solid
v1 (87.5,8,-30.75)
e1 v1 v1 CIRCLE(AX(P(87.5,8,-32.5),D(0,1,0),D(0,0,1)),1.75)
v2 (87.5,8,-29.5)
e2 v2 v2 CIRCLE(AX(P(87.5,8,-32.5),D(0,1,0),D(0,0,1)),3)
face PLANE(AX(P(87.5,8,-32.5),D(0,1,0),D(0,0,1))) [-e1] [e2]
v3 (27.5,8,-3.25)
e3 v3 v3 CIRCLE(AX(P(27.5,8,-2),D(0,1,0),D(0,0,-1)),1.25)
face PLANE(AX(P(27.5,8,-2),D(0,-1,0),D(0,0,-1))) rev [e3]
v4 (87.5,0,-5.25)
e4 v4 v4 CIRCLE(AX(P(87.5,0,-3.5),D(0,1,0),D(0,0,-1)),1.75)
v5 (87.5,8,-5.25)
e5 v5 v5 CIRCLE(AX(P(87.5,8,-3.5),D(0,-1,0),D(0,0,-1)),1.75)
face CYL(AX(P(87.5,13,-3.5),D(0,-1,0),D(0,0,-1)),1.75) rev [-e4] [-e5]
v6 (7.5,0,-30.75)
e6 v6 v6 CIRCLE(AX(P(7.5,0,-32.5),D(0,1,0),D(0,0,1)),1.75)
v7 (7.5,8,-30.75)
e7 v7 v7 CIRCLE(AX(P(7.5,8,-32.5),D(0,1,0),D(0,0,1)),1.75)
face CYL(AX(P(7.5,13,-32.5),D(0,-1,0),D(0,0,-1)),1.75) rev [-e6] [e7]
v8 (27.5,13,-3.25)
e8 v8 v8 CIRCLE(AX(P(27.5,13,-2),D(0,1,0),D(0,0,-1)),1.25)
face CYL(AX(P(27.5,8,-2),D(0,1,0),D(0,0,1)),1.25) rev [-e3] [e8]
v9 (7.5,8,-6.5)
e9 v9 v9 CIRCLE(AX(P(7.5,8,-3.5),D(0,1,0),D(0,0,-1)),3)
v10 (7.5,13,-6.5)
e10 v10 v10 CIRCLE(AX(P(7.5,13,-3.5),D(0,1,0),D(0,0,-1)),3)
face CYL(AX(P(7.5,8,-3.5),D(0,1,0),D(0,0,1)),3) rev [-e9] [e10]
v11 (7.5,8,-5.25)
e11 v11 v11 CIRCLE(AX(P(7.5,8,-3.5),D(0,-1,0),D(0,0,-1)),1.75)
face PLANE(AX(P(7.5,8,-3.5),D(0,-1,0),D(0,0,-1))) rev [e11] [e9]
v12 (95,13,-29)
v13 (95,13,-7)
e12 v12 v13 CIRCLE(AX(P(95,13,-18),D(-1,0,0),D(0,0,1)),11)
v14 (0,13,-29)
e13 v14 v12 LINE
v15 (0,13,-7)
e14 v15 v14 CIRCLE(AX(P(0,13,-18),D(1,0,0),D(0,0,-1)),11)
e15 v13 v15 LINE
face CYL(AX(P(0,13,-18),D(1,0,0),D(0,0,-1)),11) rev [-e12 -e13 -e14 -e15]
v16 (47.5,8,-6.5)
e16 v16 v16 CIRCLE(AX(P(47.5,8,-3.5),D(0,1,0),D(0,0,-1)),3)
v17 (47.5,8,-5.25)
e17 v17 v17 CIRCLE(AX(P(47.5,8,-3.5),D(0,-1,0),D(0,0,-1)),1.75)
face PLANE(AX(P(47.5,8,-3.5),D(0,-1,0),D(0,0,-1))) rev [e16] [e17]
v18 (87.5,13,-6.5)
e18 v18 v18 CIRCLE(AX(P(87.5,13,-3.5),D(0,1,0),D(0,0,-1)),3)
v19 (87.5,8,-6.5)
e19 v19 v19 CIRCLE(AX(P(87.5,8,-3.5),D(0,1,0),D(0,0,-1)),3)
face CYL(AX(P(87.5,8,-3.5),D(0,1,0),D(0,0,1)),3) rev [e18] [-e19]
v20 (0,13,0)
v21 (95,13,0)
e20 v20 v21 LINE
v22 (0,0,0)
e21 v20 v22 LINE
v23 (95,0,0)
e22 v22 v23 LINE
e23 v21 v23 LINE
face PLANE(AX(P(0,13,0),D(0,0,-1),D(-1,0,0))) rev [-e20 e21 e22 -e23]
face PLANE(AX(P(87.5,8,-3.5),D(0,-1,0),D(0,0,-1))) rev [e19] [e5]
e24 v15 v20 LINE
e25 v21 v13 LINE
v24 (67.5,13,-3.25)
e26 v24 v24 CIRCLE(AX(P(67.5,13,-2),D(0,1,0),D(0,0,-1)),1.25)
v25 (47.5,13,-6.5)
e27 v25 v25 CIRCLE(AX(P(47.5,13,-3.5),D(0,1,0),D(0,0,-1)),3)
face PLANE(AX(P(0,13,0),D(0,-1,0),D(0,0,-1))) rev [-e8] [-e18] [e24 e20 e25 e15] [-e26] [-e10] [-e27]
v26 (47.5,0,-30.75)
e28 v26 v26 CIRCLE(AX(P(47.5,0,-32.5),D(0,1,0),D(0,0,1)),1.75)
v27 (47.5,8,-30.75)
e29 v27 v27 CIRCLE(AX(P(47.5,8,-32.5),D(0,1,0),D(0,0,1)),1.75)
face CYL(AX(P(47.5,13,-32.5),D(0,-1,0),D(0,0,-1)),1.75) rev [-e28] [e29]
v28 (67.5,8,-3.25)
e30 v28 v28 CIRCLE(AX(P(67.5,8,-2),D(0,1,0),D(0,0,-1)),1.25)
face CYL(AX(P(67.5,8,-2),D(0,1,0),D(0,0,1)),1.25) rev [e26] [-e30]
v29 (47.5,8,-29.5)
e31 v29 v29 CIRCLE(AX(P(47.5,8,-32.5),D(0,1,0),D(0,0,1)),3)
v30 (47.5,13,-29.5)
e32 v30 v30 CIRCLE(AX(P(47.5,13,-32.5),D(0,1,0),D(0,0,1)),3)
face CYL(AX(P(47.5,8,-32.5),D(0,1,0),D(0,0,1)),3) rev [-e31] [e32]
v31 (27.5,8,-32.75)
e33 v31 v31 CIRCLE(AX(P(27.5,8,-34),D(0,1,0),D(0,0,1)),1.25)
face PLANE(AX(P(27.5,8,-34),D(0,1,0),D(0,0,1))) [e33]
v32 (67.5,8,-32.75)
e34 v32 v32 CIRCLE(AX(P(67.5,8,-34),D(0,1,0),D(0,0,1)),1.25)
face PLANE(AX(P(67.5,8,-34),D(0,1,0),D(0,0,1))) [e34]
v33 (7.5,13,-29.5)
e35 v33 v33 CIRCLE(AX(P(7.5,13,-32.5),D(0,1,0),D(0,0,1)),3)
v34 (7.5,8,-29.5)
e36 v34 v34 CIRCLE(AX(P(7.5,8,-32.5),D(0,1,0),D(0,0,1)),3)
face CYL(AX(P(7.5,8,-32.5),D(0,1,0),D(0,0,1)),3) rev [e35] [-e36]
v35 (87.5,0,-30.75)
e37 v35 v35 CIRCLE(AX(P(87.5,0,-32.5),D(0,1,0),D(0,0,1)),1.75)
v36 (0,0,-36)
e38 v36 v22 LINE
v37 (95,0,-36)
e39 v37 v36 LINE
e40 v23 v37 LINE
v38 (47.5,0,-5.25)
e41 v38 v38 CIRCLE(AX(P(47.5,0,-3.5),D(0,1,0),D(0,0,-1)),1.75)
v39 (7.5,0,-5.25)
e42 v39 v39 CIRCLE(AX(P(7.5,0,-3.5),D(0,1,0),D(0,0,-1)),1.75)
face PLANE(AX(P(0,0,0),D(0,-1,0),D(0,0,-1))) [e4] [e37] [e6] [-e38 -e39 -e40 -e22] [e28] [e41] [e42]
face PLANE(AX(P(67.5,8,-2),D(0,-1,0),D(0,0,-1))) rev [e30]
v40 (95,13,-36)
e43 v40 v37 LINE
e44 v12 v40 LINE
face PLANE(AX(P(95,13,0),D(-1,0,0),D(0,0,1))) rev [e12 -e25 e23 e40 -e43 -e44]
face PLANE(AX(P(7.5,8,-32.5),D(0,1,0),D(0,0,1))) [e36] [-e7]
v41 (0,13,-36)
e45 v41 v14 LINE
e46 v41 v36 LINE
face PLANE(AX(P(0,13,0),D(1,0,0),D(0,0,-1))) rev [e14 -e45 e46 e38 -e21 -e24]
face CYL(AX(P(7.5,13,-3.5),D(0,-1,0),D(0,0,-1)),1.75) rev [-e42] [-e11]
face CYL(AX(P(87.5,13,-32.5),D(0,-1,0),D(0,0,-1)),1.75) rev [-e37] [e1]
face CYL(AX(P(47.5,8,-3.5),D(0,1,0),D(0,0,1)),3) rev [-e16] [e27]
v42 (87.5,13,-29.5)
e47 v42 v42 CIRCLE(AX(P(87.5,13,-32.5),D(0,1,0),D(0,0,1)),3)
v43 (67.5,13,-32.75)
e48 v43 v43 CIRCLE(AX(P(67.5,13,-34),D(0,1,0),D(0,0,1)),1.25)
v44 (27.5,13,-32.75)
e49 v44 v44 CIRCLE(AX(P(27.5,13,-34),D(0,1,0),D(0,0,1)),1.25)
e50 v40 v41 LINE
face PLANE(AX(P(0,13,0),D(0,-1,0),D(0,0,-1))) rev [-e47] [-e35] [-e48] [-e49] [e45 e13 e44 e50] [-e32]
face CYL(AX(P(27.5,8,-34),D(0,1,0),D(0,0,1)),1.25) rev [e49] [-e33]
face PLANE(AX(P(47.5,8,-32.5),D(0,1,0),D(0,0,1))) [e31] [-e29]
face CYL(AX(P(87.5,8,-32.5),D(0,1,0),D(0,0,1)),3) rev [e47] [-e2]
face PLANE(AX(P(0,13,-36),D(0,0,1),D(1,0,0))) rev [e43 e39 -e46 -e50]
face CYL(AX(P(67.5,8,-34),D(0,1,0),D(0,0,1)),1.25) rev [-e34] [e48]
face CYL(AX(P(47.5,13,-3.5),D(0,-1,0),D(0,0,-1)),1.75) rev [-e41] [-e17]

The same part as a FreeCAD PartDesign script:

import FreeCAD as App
import Part
import Sketcher
Q = App.Units.Quantity

doc = App.newDocument("Part")
body = doc.addObject("PartDesign::Body", "Body")

# Sketch on XZ plane
sketch1 = body.newObject("Sketcher::SketchObject", "Sketch")
sketch1.AttachmentSupport = (doc.getObject("XZ_Plane"), [""])
sketch1.MapMode = "FlatFace"
sketch1.addGeometry(Part.LineSegment(App.Vector(0, -36, 0), App.Vector(0, 0, 0)), False)
sketch1.addGeometry(Part.LineSegment(App.Vector(0, 0, 0), App.Vector(95, 0, 0)), False)
sketch1.addGeometry(Part.LineSegment(App.Vector(95, 0, 0), App.Vector(95, -36, 0)), False)
sketch1.addGeometry(Part.LineSegment(App.Vector(95, -36, 0), App.Vector(0, -36, 0)), False)
sketch1.addGeometry(Part.Circle(App.Vector(7.5, -3.5, 0), App.Vector(0, 0, 1), 1.8), False)
sketch1.addGeometry(Part.Circle(App.Vector(47.5, -3.5, 0), App.Vector(0, 0, 1), 1.8), False)
sketch1.addGeometry(Part.Circle(App.Vector(87.5, -3.5, 0), App.Vector(0, 0, 1), 1.8), False)
sketch1.addGeometry(Part.Circle(App.Vector(7.5, -32.5, 0), App.Vector(0, 0, 1), 1.8), False)
sketch1.addGeometry(Part.Circle(App.Vector(47.5, -32.5, 0), App.Vector(0, 0, 1), 1.8), False)
sketch1.addGeometry(Part.Circle(App.Vector(87.5, -32.5, 0), App.Vector(0, 0, 1), 1.8), False)
sketch1.addConstraint(Sketcher.Constraint("Coincident", 0, 2, 1, 1))
sketch1.addConstraint(Sketcher.Constraint("Coincident", 1, 2, 2, 1))
sketch1.addConstraint(Sketcher.Constraint("Coincident", 2, 2, 3, 1))
sketch1.addConstraint(Sketcher.Constraint("Coincident", 3, 2, 0, 1))
sketch1.addConstraint(Sketcher.Constraint("Vertical", 0))
sketch1.addConstraint(Sketcher.Constraint("Horizontal", 1))
sketch1.addConstraint(Sketcher.Constraint("Vertical", 2))
sketch1.addConstraint(Sketcher.Constraint("Horizontal", 3))
sketch1.addConstraint(Sketcher.Constraint("Coincident", 0, 2, -1, 1))
sketch1.addConstraint(Sketcher.Constraint("Equal", 4, 5))
sketch1.addConstraint(Sketcher.Constraint("Equal", 5, 6))
sketch1.addConstraint(Sketcher.Constraint("Equal", 6, 7))
sketch1.addConstraint(Sketcher.Constraint("Equal", 7, 8))
sketch1.addConstraint(Sketcher.Constraint("Equal", 8, 9))
sketch1.addConstraint(Sketcher.Constraint("Horizontal", 4, 3, 5, 3))
sketch1.addConstraint(Sketcher.Constraint("Horizontal", 5, 3, 6, 3))
sketch1.addConstraint(Sketcher.Constraint("Horizontal", 7, 3, 8, 3))
sketch1.addConstraint(Sketcher.Constraint("Horizontal", 8, 3, 9, 3))
sketch1.addConstraint(Sketcher.Constraint("Vertical", 4, 3, 7, 3))
sketch1.addConstraint(Sketcher.Constraint("Vertical", 5, 3, 8, 3))
sketch1.addConstraint(Sketcher.Constraint("Vertical", 6, 3, 9, 3))
sketch1.addConstraint(Sketcher.Constraint("Diameter", 4, Q("3.5 mm")))
sketch1.addConstraint(Sketcher.Constraint("DistanceX", 1, 1, 1, 2, Q("95 mm")))
sketch1.addConstraint(Sketcher.Constraint("DistanceY", 0, 1, 0, 2, Q("36 mm")))
sketch1.addConstraint(Sketcher.Constraint("DistanceX", 4, 3, 5, 3, Q("40 mm")))
sketch1.addConstraint(Sketcher.Constraint("DistanceX", 5, 3, 6, 3, Q("40 mm")))
sketch1.addConstraint(Sketcher.Constraint("DistanceY", 7, 3, 4, 3, Q("29 mm")))
sketch1.addConstraint(Sketcher.Constraint("DistanceX", -1, 1, 4, 3, Q("7.5 mm")))
sketch1.addConstraint(Sketcher.Constraint("DistanceY", 4, 3, -1, 1, Q("3.5 mm")))
pad1 = body.newObject("PartDesign::Pad", "Pad")
pad1.Profile = sketch1
pad1.Length = 13
pad1.Reversed = True

# Sketch on YZ plane
sketch2 = body.newObject("Sketcher::SketchObject", "Sketch001")
sketch2.AttachmentSupport = (doc.getObject("YZ_Plane"), [""])
sketch2.MapMode = "FlatFace"
sketch2.AttachmentOffset = App.Placement(App.Vector(0, 0, 95), App.Rotation())
sketch2.addGeometry(Part.Circle(App.Vector(13, -18, 0), App.Vector(0, 0, 1), 11), False)
sketch2.addConstraint(Sketcher.Constraint("Diameter", 0, Q("22 mm")))
sketch2.addConstraint(Sketcher.Constraint("DistanceX", -1, 1, 0, 3, Q("13 mm")))
sketch2.addConstraint(Sketcher.Constraint("DistanceY", 0, 3, -1, 1, Q("18 mm")))
pocket1 = body.newObject("PartDesign::Pocket", "Pocket")
pocket1.Profile = sketch2
pocket1.Type = "ThroughAll"

# Sketch on XZ plane
sketch3 = body.newObject("Sketcher::SketchObject", "Sketch002")
sketch3.AttachmentSupport = (doc.getObject("XZ_Plane"), [""])
sketch3.MapMode = "FlatFace"
sketch3.AttachmentOffset = App.Placement(App.Vector(0, 0, -13), App.Rotation())
sketch3.addGeometry(Part.Circle(App.Vector(7.5, -32.5, 0), App.Vector(0, 0, 1), 3), False)
sketch3.addGeometry(Part.Circle(App.Vector(47.5, -32.5, 0), App.Vector(0, 0, 1), 3), False)
sketch3.addGeometry(Part.Circle(App.Vector(87.5, -32.5, 0), App.Vector(0, 0, 1), 3), False)
sketch3.addGeometry(Part.Circle(App.Vector(87.5, -3.5, 0), App.Vector(0, 0, 1), 3), False)
sketch3.addGeometry(Part.Circle(App.Vector(47.5, -3.5, 0), App.Vector(0, 0, 1), 3), False)
sketch3.addGeometry(Part.Circle(App.Vector(7.5, -3.5, 0), App.Vector(0, 0, 1), 3), False)
sketch3.addGeometry(Part.Circle(App.Vector(27.5, -34, 0), App.Vector(0, 0, 1), 1.2), False)
sketch3.addGeometry(Part.Circle(App.Vector(67.5, -34, 0), App.Vector(0, 0, 1), 1.2), False)
sketch3.addGeometry(Part.Circle(App.Vector(67.5, -2, 0), App.Vector(0, 0, 1), 1.2), False)
sketch3.addGeometry(Part.Circle(App.Vector(27.5, -2, 0), App.Vector(0, 0, 1), 1.2), False)
sketch3.addConstraint(Sketcher.Constraint("Equal", 0, 1))
sketch3.addConstraint(Sketcher.Constraint("Equal", 1, 2))
sketch3.addConstraint(Sketcher.Constraint("Equal", 2, 3))
sketch3.addConstraint(Sketcher.Constraint("Equal", 3, 4))
sketch3.addConstraint(Sketcher.Constraint("Equal", 4, 5))
sketch3.addConstraint(Sketcher.Constraint("Equal", 6, 7))
sketch3.addConstraint(Sketcher.Constraint("Equal", 7, 8))
sketch3.addConstraint(Sketcher.Constraint("Equal", 8, 9))
sketch3.addConstraint(Sketcher.Constraint("Horizontal", 0, 3, 1, 3))
sketch3.addConstraint(Sketcher.Constraint("Horizontal", 1, 3, 2, 3))
sketch3.addConstraint(Sketcher.Constraint("Horizontal", 3, 3, 4, 3))
sketch3.addConstraint(Sketcher.Constraint("Horizontal", 4, 3, 5, 3))
sketch3.addConstraint(Sketcher.Constraint("Horizontal", 6, 3, 7, 3))
sketch3.addConstraint(Sketcher.Constraint("Horizontal", 8, 3, 9, 3))
sketch3.addConstraint(Sketcher.Constraint("Vertical", 2, 3, 3, 3))
sketch3.addConstraint(Sketcher.Constraint("Vertical", 1, 3, 4, 3))
sketch3.addConstraint(Sketcher.Constraint("Vertical", 0, 3, 5, 3))
sketch3.addConstraint(Sketcher.Constraint("Vertical", 7, 3, 8, 3))
sketch3.addConstraint(Sketcher.Constraint("Vertical", 6, 3, 9, 3))
sketch3.addConstraint(Sketcher.Constraint("Diameter", 0, Q("6 mm")))
sketch3.addConstraint(Sketcher.Constraint("Diameter", 6, Q("2.5 mm")))
sketch3.addConstraint(Sketcher.Constraint("DistanceY", 6, 3, -1, 1, Q("34 mm")))
sketch3.addConstraint(Sketcher.Constraint("DistanceY", 8, 3, -1, 1, Q("2 mm")))
sketch3.addConstraint(Sketcher.Constraint("DistanceX", 0, 3, 1, 3, Q("40 mm")))
sketch3.addConstraint(Sketcher.Constraint("DistanceX", 1, 3, 2, 3, Q("40 mm")))
sketch3.addConstraint(Sketcher.Constraint("DistanceY", 2, 3, 3, 3, Q("29 mm")))
sketch3.addConstraint(Sketcher.Constraint("DistanceX", 0, 3, 6, 3, Q("20 mm")))
sketch3.addConstraint(Sketcher.Constraint("DistanceX", 1, 3, 7, 3, Q("20 mm")))
sketch3.addConstraint(Sketcher.Constraint("DistanceX", -1, 1, 0, 3, Q("7.5 mm")))
sketch3.addConstraint(Sketcher.Constraint("DistanceY", 0, 3, -1, 1, Q("32.5 mm")))
pocket2 = body.newObject("PartDesign::Pocket", "Pocket001")
pocket2.Profile = sketch3
pocket2.Length = 5
pocket2.Reversed = True

doc.recompute()
